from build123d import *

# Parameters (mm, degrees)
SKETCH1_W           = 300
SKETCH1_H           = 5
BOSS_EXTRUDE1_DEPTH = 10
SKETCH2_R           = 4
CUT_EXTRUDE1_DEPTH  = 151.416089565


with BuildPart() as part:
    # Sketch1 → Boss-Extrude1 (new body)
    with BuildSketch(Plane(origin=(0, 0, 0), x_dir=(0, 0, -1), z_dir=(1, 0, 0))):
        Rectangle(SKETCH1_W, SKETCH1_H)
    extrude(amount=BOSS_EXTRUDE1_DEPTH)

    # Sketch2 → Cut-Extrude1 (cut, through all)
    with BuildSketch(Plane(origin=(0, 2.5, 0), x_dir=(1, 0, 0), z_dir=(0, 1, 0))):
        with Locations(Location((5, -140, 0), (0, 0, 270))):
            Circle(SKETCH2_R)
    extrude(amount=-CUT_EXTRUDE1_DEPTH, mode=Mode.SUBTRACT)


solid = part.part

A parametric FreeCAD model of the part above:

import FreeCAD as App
import Part
import Sketcher


def add_polygon(sketch, points):
    """Adds a closed chain of lines whose ends are joined by coincident constraints."""
    first, n = sketch.GeometryCount, len(points)
    for a, b in zip(points, points[1:] + points[:1]):
        sketch.addGeometry(Part.LineSegment(App.Vector(*a, 0), App.Vector(*b, 0)), False)
    for i in range(n):
        sketch.addConstraint(Sketcher.Constraint("Coincident", first + i, 2, first + (i + 1) % n, 1))

doc = App.newDocument("Part")
params = doc.addObject("Spreadsheet::Sheet", "Params")
for row, (alias, value) in enumerate([
    ("sketch1_width", "5 mm"),
    ("sketch1_height", "300 mm"),
    ("pad1_length", "10 mm"),
    ("sketch2_diameter", "8 mm"),
], start=1):
    params.set(f"A{row}", alias)
    params.set(f"B{row}", "=" + value)
    params.setAlias(f"B{row}", alias)

body = doc.addObject("PartDesign::Body", "Body")

# Sketch on YZ plane
sketch1 = doc.addObject("Sketcher::SketchObject", "Sketch")
body.addObject(sketch1)
sketch1.AttachmentSupport = (doc.YZ_Plane, [""])
sketch1.MapMode = "FlatFace"
add_polygon(sketch1, [(2, 150), (-2, 150), (-2, -150), (2, -150)])  # lines 0-3
sketch1.addConstraint([
    Sketcher.Constraint("Horizontal", 0),
    Sketcher.Constraint("Vertical", 1),
    Sketcher.Constraint("Horizontal", 2),
    Sketcher.Constraint("Vertical", 3),
    Sketcher.Constraint("Symmetric", 0, 2, 2, 2, -1, 1),
    Sketcher.Constraint("DistanceX", 0, 2, 0, 1, 5.0),
    Sketcher.Constraint("DistanceY", 1, 2, 1, 1, 300.0),
])
sketch1.setExpression("Constraints[9]", "Params.sketch1_width")
sketch1.setExpression("Constraints[10]", "Params.sketch1_height")
pad1 = doc.addObject("PartDesign::Pad", "Pad")
body.addObject(pad1)
pad1.Profile = sketch1
pad1.setExpression("Length", "Params.pad1_length")

# Sketch on XZ plane
sketch2 = doc.addObject("Sketcher::SketchObject", "Sketch001")
body.addObject(sketch2)
sketch2.AttachmentSupport = (doc.XZ_Plane, [""])
sketch2.MapMode = "FlatFace"
sketch2.AttachmentOffset = App.Placement(App.Vector(0, 0, -2.5), App.Rotation())
sketch2.addGeometry(Part.Circle(App.Vector(5, 140, 0), App.Vector(0, 0, 1), 4), False)
sketch2.addConstraint([
    Sketcher.Constraint("Diameter", 0, 8.0),
    Sketcher.Constraint("DistanceX", -1, 1, 0, 3, 5.0),
    Sketcher.Constraint("DistanceY", -1, 1, 0, 3, 140.0),
])
sketch2.setExpression("Constraints[0]", "Params.sketch2_diameter")
pocket1 = doc.addObject("PartDesign::Pocket", "Pocket")
body.addObject(pocket1)
pocket1.Profile = sketch2
pocket1.Type = "ThroughAll"
pocket1.Reversed = True

doc.recompute()
